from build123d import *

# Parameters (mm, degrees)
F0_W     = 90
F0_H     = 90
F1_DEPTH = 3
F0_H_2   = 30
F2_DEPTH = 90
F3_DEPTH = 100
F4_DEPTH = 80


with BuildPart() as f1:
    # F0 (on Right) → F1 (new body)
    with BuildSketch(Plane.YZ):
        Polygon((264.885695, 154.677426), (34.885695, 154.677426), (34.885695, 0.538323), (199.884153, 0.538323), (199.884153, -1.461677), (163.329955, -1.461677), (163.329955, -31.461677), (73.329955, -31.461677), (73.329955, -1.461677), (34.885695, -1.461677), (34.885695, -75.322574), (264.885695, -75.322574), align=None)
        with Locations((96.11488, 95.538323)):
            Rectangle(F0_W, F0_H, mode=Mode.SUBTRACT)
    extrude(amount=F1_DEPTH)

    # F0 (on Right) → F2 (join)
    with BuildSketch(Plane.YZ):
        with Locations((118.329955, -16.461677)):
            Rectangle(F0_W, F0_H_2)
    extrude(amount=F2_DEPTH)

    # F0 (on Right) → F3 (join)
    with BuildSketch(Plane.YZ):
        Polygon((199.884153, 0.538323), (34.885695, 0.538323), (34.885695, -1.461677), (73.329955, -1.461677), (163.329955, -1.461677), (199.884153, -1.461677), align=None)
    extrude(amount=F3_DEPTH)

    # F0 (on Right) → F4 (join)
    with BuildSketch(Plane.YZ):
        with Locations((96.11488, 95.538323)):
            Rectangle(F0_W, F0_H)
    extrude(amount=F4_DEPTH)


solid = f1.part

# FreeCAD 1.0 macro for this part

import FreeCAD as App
import Part
import Sketcher

V = App.Vector
Q = App.Units.Quantity

doc = App.newDocument("Part")
body = doc.addObject("PartDesign::Body", "Body")

sketch1 = body.newObject("Sketcher::SketchObject", "Sketch")
sketch1.AttachmentSupport = (doc.getObject("YZ_Plane"), [""])
sketch1.MapMode = "FlatFace"
sketch1.addGeometry([
    Part.LineSegment(V(264.9, 154.7, 0), V(34.9, 154.7, 0)),
    Part.LineSegment(V(34.9, 154.7, 0), V(34.9, 0.5, 0)),
    Part.LineSegment(V(34.9, 0.5, 0), V(199.9, 0.5, 0)),
    Part.LineSegment(V(199.9, 0.5, 0), V(199.9, -1.5, 0)),
    Part.LineSegment(V(199.9, -1.5, 0), V(163.3, -1.5, 0)),
    Part.LineSegment(V(163.3, -1.5, 0), V(163.3, -31.5, 0)),
    Part.LineSegment(V(163.3, -31.5, 0), V(73.3, -31.5, 0)),
    Part.LineSegment(V(73.3, -31.5, 0), V(73.3, -1.5, 0)),
    Part.LineSegment(V(73.3, -1.5, 0), V(34.9, -1.5, 0)),
    Part.LineSegment(V(34.9, -1.5, 0), V(34.9, -75.3, 0)),
    Part.LineSegment(V(34.9, -75.3, 0), V(264.9, -75.3, 0)),
    Part.LineSegment(V(264.9, -75.3, 0), V(264.9, 154.7, 0)),
    Part.LineSegment(V(141.1, 50.5, 0), V(51.1, 50.5, 0)),
    Part.LineSegment(V(51.1, 50.5, 0), V(51.1, 140.5, 0)),
    Part.LineSegment(V(51.1, 140.5, 0), V(141.1, 140.5, 0)),
    Part.LineSegment(V(141.1, 140.5, 0), V(141.1, 50.5, 0)),
], False)
sketch1.addConstraint([
    Sketcher.Constraint("Coincident", 0, 2, 1, 1),
    Sketcher.Constraint("Coincident", 1, 2, 2, 1),
    Sketcher.Constraint("Coincident", 2, 2, 3, 1),
    Sketcher.Constraint("Coincident", 3, 2, 4, 1),
    Sketcher.Constraint("Coincident", 4, 2, 5, 1),
    Sketcher.Constraint("Coincident", 5, 2, 6, 1),
    Sketcher.Constraint("Coincident", 6, 2, 7, 1),
    Sketcher.Constraint("Coincident", 7, 2, 8, 1),
    Sketcher.Constraint("Coincident", 8, 2, 9, 1),
    Sketcher.Constraint("Coincident", 9, 2, 10, 1),
    Sketcher.Constraint("Coincident", 10, 2, 11, 1),
    Sketcher.Constraint("Coincident", 11, 2, 0, 1),
    Sketcher.Constraint("Coincident", 12, 2, 13, 1),
    Sketcher.Constraint("Coincident", 13, 2, 14, 1),
    Sketcher.Constraint("Coincident", 14, 2, 15, 1),
    Sketcher.Constraint("Coincident", 15, 2, 12, 1),
    Sketcher.Constraint("Horizontal", 0),
    Sketcher.Constraint("Vertical", 1),
    Sketcher.Constraint("Horizontal", 2),
    Sketcher.Constraint("Vertical", 3),
    Sketcher.Constraint("Horizontal", 4),
    Sketcher.Constraint("Vertical", 5),
    Sketcher.Constraint("Horizontal", 6),
    Sketcher.Constraint("Vertical", 7),
    Sketcher.Constraint("Horizontal", 8),
    Sketcher.Constraint("Vertical", 9),
    Sketcher.Constraint("Horizontal", 10),
    Sketcher.Constraint("Vertical", 11),
    Sketcher.Constraint("Horizontal", 12),
    Sketcher.Constraint("Vertical", 13),
    Sketcher.Constraint("Horizontal", 14),
    Sketcher.Constraint("Vertical", 15),
    Sketcher.Constraint("Horizontal", 4, 2, 7, 2),
    Sketcher.Constraint("Vertical", 1, 2, 8, 2),
    Sketcher.Constraint("Equal", 6, 12),
    Sketcher.Constraint("Equal", 10, 11),
    Sketcher.Constraint("Equal", 14, 13),
    Sketcher.Constraint("DistanceX", 0, 2, 0, 1, Q("230 mm")),
    Sketcher.Constraint("DistanceX", 6, 2, 6, 1, Q("90 mm")),
    Sketcher.Constraint("DistanceY", 3, 2, 3, 1, Q("2 mm")),
    Sketcher.Constraint("DistanceY", 5, 2, 5, 1, Q("30 mm")),
    Sketcher.Constraint("DistanceY", 1, 2, 12, 2, Q("50 mm")),
    Sketcher.Constraint("DistanceX", 2, 1, 2, 2, Q("164.998458 mm")),
    Sketcher.Constraint("DistanceX", 8, 2, 8, 1, Q("38.44426 mm")),
    Sketcher.Constraint("DistanceY", 1, 2, 1, 1, Q("154.139103 mm")),
    Sketcher.Constraint("DistanceX", -1, 1, 12, 2, Q("51.11488 mm")),
    Sketcher.Constraint("DistanceX", -1, 1, 0, 2, Q("34.885695 mm")),
    Sketcher.Constraint("DistanceY", -1, 1, 0, 2, Q("154.677426 mm")),
])
pad1 = body.newObject("PartDesign::Pad", "Pad")
pad1.Profile = sketch1
pad1.Length = 3

sketch2 = body.newObject("Sketcher::SketchObject", "Sketch001")
sketch2.AttachmentSupport = (doc.getObject("YZ_Plane"), [""])
sketch2.MapMode = "FlatFace"
sketch2.addGeometry([
    Part.LineSegment(V(73, -1, 0), V(73, -31, 0)),
    Part.LineSegment(V(73, -31, 0), V(163, -31, 0)),
    Part.LineSegment(V(163, -31, 0), V(163, -1, 0)),
    Part.LineSegment(V(163, -1, 0), V(73, -1, 0)),
], False)
sketch2.addConstraint([
    Sketcher.Constraint("Coincident", 0, 2, 1, 1),
    Sketcher.Constraint("Coincident", 1, 2, 2, 1),
    Sketcher.Constraint("Coincident", 2, 2, 3, 1),
    Sketcher.Constraint("Coincident", 3, 2, 0, 1),
    Sketcher.Constraint("Vertical", 0),
    Sketcher.Constraint("Horizontal", 1),
    Sketcher.Constraint("Vertical", 2),
    Sketcher.Constraint("Horizontal", 3),
    Sketcher.Constraint("DistanceX", 1, 1, 1, 2, Q("90 mm")),
    Sketcher.Constraint("DistanceY", 0, 2, 0, 1, Q("30 mm")),
    Sketcher.Constraint("DistanceX", -1, 1, 0, 2, Q("73.329955 mm")),
    Sketcher.Constraint("DistanceY", 0, 2, -1, 1, Q("31.461677 mm")),
])
pad2 = body.newObject("PartDesign::Pad", "Pad001")
pad2.Profile = sketch2
pad2.Length = 90

sketch3 = body.newObject("Sketcher::SketchObject", "Sketch002")
sketch3.AttachmentSupport = (doc.getObject("YZ_Plane"), [""])
sketch3.MapMode = "FlatFace"
sketch3.addGeometry([
    Part.LineSegment(V(199.9, 0.5, 0), V(34.9, 0.5, 0)),
    Part.LineSegment(V(34.9, 0.5, 0), V(34.9, -1.5, 0)),
    Part.LineSegment(V(34.9, -1.5, 0), V(199.9, -1.5, 0)),
    Part.LineSegment(V(199.9, -1.5, 0), V(199.9, 0.5, 0)),
], False)
sketch3.addConstraint([
    Sketcher.Constraint("Coincident", 0, 2, 1, 1),
    Sketcher.Constraint("Coincident", 1, 2, 2, 1),
    Sketcher.Constraint("Coincident", 2, 2, 3, 1),
    Sketcher.Constraint("Coincident", 3, 2, 0, 1),
    Sketcher.Constraint("Horizontal", 0),
    Sketcher.Constraint("Vertical", 1),
    Sketcher.Constraint("Horizontal", 2),
    Sketcher.Constraint("Vertical", 3),
    Sketcher.Constraint("DistanceY", 1, 2, 1, 1, Q("2 mm")),
    Sketcher.Constraint("DistanceX", 0, 2, 0, 1, Q("164.998458 mm")),
    Sketcher.Constraint("DistanceX", -1, 1, 0, 2, Q("34.885695 mm")),
    Sketcher.Constraint("DistanceY", -1, 1, 0, 2, Q("0.538323 mm")),
])
pad3 = body.newObject("PartDesign::Pad", "Pad002")
pad3.Profile = sketch3
pad3.Length = 100

sketch4 = body.newObject("Sketcher::SketchObject", "Sketch003")
sketch4.AttachmentSupport = (doc.getObject("YZ_Plane"), [""])
sketch4.MapMode = "FlatFace"
sketch4.addGeometry([
    Part.LineSegment(V(51, 141, 0), V(51, 51, 0)),
    Part.LineSegment(V(51, 51, 0), V(141, 51, 0)),
    Part.LineSegment(V(141, 51, 0), V(141, 141, 0)),
    Part.LineSegment(V(141, 141, 0), V(51, 141, 0)),
], False)
sketch4.addConstraint([
    Sketcher.Constraint("Coincident", 0, 2, 1, 1),
    Sketcher.Constraint("Coincident", 1, 2, 2, 1),
    Sketcher.Constraint("Coincident", 2, 2, 3, 1),
    Sketcher.Constraint("Coincident", 3, 2, 0, 1),
    Sketcher.Constraint("Vertical", 0),
    Sketcher.Constraint("Horizontal", 1),
    Sketcher.Constraint("Vertical", 2),
    Sketcher.Constraint("Horizontal", 3),
    Sketcher.Constraint("Equal", 3, 0),
    Sketcher.Constraint("DistanceX", 1, 1, 1, 2, Q("90 mm")),
    Sketcher.Constraint("DistanceX", -1, 1, 0, 2, Q("51.11488 mm")),
    Sketcher.Constraint("DistanceY", -1, 1, 0, 2, Q("50.538323 mm")),
])
pad4 = body.newObject("PartDesign::Pad", "Pad003")
pad4.Profile = sketch4
pad4.Length = 80

doc.recompute()
